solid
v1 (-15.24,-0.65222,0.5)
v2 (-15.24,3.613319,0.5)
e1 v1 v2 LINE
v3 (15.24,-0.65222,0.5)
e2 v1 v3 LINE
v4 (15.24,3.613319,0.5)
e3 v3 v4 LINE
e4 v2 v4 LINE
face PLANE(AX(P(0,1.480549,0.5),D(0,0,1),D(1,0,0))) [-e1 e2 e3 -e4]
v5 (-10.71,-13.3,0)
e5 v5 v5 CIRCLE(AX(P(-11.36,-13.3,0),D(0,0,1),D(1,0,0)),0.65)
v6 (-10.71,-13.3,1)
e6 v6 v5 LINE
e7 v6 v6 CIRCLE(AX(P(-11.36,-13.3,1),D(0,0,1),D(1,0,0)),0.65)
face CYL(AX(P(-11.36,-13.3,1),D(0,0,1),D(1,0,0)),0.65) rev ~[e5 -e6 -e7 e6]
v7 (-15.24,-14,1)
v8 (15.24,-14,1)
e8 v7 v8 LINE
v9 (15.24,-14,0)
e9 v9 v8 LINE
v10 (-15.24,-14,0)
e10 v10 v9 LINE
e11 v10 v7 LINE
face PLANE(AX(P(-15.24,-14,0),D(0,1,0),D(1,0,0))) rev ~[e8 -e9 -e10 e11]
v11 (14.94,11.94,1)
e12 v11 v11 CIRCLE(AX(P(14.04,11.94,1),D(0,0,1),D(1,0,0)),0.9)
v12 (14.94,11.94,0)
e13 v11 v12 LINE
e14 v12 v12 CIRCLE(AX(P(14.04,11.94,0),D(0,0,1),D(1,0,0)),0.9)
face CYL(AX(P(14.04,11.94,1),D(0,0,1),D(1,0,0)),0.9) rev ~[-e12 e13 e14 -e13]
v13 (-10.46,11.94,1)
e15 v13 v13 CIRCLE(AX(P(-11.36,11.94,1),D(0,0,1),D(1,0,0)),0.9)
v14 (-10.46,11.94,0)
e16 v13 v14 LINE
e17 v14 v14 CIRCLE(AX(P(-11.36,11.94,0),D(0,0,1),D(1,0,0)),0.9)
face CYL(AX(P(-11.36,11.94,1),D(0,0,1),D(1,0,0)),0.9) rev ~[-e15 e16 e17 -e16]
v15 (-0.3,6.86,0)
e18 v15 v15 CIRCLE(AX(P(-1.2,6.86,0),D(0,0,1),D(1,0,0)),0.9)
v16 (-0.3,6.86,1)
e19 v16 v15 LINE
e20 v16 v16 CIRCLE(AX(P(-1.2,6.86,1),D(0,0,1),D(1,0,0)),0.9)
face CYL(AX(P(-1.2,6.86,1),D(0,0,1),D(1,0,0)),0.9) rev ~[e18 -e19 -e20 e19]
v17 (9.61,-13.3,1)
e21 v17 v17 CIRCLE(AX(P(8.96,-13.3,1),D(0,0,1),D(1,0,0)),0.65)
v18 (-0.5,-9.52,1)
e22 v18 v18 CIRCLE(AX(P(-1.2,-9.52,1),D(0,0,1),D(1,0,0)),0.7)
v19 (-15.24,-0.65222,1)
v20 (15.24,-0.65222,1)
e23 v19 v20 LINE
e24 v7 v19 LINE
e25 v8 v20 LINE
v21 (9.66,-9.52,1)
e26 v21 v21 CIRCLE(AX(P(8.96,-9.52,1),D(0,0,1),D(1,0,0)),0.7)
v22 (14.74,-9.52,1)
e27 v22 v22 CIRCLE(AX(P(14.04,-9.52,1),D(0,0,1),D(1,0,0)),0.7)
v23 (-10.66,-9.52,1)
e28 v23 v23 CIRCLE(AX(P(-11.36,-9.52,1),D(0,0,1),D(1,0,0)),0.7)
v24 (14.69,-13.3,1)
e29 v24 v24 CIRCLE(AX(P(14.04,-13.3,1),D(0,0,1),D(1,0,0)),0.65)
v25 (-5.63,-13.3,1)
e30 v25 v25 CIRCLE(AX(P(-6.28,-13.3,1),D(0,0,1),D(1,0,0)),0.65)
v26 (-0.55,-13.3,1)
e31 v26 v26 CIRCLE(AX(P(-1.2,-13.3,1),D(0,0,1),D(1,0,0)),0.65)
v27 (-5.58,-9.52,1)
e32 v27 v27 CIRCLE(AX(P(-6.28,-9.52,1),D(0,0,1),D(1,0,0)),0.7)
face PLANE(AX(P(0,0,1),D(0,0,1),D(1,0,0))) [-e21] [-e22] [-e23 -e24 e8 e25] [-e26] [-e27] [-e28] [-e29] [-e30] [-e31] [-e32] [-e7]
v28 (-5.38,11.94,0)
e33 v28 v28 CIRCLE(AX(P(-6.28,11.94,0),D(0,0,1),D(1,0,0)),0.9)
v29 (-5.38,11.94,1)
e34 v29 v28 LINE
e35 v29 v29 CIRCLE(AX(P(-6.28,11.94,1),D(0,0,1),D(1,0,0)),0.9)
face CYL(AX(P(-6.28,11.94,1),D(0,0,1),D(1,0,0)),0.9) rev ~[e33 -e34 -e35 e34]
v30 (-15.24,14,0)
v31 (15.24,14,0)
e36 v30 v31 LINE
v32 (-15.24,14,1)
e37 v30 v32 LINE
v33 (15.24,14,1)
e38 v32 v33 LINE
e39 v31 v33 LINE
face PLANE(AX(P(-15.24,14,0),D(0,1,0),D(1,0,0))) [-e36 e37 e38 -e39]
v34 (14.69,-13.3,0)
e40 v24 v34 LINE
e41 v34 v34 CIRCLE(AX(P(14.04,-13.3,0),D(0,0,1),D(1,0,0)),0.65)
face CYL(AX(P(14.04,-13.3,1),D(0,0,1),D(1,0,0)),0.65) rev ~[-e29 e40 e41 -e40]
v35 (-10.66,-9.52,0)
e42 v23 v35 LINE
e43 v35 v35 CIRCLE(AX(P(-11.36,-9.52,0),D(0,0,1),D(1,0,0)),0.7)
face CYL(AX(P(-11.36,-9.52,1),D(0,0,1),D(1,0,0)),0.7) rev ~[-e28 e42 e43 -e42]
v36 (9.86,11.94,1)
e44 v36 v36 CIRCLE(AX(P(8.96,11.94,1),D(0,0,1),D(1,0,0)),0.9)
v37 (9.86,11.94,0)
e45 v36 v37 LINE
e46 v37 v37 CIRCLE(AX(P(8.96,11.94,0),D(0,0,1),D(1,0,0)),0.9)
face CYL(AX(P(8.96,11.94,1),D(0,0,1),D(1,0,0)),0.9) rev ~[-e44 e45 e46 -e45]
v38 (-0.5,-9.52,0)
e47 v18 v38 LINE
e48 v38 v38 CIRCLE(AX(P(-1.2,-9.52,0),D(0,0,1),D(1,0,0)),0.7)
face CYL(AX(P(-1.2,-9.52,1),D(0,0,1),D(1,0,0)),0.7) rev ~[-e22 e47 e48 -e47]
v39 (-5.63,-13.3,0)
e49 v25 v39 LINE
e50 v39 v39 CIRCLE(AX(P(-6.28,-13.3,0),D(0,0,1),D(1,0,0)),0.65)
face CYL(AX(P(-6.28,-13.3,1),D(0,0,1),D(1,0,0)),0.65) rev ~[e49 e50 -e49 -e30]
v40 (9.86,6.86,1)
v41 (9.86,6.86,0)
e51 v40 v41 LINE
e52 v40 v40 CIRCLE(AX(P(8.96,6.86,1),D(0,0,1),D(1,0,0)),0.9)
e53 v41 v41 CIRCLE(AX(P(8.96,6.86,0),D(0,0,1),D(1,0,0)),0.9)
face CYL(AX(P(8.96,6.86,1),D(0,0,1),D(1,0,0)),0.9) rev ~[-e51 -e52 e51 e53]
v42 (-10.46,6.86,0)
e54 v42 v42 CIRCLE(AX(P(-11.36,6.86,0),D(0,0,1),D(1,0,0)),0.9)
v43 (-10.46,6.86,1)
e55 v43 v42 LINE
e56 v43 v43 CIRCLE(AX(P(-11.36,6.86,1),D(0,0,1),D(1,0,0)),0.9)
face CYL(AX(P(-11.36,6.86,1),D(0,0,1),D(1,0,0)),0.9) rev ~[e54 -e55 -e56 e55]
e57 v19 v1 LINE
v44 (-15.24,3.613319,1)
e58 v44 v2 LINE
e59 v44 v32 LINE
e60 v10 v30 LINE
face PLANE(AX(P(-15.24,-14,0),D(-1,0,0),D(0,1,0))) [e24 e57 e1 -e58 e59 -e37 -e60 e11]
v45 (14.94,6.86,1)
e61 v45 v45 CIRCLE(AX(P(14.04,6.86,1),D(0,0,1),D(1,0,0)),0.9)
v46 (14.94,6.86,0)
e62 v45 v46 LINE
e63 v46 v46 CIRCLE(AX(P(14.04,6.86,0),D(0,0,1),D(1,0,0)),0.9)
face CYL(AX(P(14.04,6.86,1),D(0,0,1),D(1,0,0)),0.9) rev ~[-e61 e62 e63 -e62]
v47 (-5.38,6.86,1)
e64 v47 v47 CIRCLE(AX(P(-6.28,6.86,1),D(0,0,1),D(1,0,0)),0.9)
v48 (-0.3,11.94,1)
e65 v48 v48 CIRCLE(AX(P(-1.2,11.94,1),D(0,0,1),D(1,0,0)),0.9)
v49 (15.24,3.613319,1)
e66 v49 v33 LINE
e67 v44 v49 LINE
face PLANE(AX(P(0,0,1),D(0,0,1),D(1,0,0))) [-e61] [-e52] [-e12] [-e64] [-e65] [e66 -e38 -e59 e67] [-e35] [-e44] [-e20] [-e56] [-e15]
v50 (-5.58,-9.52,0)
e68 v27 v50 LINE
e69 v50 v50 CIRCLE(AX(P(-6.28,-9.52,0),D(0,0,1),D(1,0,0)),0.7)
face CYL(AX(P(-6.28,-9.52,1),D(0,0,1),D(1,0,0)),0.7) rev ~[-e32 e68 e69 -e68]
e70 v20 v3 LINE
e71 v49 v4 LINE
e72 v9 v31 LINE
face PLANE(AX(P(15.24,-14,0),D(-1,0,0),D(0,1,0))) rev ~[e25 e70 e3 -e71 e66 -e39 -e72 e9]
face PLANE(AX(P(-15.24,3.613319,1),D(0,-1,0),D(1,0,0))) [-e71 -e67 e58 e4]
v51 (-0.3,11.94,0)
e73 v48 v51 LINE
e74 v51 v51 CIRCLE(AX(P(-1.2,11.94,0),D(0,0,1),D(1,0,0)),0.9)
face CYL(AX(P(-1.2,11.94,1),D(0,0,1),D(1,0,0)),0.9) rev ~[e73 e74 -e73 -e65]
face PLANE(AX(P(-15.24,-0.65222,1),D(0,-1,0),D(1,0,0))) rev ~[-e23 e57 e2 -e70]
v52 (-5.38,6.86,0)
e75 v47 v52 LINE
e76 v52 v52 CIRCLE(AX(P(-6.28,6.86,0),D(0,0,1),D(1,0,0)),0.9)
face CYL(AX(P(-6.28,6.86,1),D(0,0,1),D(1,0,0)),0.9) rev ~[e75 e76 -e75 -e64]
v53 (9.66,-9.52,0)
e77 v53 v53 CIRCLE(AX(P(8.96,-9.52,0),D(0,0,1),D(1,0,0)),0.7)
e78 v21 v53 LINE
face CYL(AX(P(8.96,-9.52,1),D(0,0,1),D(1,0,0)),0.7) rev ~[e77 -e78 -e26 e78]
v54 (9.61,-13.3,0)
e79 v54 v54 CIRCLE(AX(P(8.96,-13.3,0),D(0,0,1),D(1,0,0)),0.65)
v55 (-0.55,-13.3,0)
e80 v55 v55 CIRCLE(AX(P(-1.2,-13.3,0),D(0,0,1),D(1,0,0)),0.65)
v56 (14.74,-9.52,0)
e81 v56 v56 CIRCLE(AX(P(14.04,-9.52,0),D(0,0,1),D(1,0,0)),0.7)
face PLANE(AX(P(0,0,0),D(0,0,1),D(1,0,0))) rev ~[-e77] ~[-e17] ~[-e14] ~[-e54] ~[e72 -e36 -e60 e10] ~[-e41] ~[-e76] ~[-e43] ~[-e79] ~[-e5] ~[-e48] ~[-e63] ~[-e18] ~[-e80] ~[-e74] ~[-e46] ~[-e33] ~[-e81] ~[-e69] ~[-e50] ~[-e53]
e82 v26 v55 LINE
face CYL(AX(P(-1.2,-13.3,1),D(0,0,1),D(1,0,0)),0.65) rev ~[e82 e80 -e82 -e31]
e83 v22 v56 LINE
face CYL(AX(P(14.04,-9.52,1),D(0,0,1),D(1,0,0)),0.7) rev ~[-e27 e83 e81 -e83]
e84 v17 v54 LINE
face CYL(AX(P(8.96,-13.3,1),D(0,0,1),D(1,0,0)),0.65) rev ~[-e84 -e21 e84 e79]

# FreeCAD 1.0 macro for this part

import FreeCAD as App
import Part
import Sketcher
from FreeCAD import Vector

doc = App.newDocument("Part")
body = doc.addObject("PartDesign::Body", "Body")

sketch1 = body.newObject("Sketcher::SketchObject", "Sketch")
sketch1.AttachmentSupport = (doc.getObject("XY_Plane"), [""])
sketch1.MapMode = "FlatFace"
sketch1.addGeometry([
    Part.LineSegment(Vector(-15, 14, 0), Vector(-15, -14, 0)),
    Part.LineSegment(Vector(-15, -14, 0), Vector(15, -14, 0)),
    Part.LineSegment(Vector(15, -14, 0), Vector(15, 14, 0)),
    Part.LineSegment(Vector(15, 14, 0), Vector(-15, 14, 0)),
], False)
sketch1.addConstraint([
    Sketcher.Constraint("Coincident", 0, 2, 1, 1),
    Sketcher.Constraint("Coincident", 1, 2, 2, 1),
    Sketcher.Constraint("Coincident", 2, 2, 3, 1),
    Sketcher.Constraint("Coincident", 3, 2, 0, 1),
    Sketcher.Constraint("Vertical", 0),
    Sketcher.Constraint("Horizontal", 1),
    Sketcher.Constraint("Vertical", 2),
    Sketcher.Constraint("Horizontal", 3),
    Sketcher.Constraint("Symmetric", 0, 2, 2, 2, -1, 1),
    Sketcher.Constraint("DistanceY", 0, 2, 0, 1, 28.0),
    Sketcher.Constraint("DistanceX", 1, 1, 1, 2, 30.48),
])
pad1 = body.newObject("PartDesign::Pad", "Pad")
pad1.Profile = sketch1
pad1.Length = 1

sketch2 = body.newObject("Sketcher::SketchObject", "Sketch001")
sketch2.AttachmentSupport = (doc.getObject("XY_Plane"), [""])
sketch2.MapMode = "FlatFace"
sketch2.AttachmentOffset = App.Placement(Vector(0, 0, 1), App.Rotation())
sketch2.addGeometry([
    Part.LineSegment(Vector(-15.2, 3.6, 0), Vector(-15.2, -0.7, 0)),
    Part.LineSegment(Vector(-15.2, -0.7, 0), Vector(15.2, -0.7, 0)),
    Part.LineSegment(Vector(15.2, -0.7, 0), Vector(15.2, 3.6, 0)),
    Part.LineSegment(Vector(15.2, 3.6, 0), Vector(-15.2, 3.6, 0)),
], False)
sketch2.addConstraint([
    Sketcher.Constraint("Coincident", 0, 2, 1, 1),
    Sketcher.Constraint("Coincident", 1, 2, 2, 1),
    Sketcher.Constraint("Coincident", 2, 2, 3, 1),
    Sketcher.Constraint("Coincident", 3, 2, 0, 1),
    Sketcher.Constraint("Vertical", 0),
    Sketcher.Constraint("Horizontal", 1),
    Sketcher.Constraint("Vertical", 2),
    Sketcher.Constraint("Horizontal", 3),
    Sketcher.Constraint("DistanceX", 1, 1, 1, 2, 30.48),
    Sketcher.Constraint("DistanceX", 0, 2, -1, 1, 15.24),
    Sketcher.Constraint("DistanceY", 0, 2, 0, 1, 4.265539),
    Sketcher.Constraint("DistanceY", 0, 2, -1, 1, 0.65222),
])
pocket1 = body.newObject("PartDesign::Pocket", "Pocket")
pocket1.Profile = sketch2
pocket1.Length = 0.5

sketch3 = body.newObject("Sketcher::SketchObject", "Sketch002")
sketch3.AttachmentSupport = (doc.getObject("XY_Plane"), [""])
sketch3.MapMode = "FlatFace"
sketch3.AttachmentOffset = App.Placement(Vector(0, 0, 1), App.Rotation())
sketch3.addGeometry([
    Part.Circle(Vector(-11.4, 11.9, 0), Vector(0, 0, 1), 0.9),
    Part.Circle(Vector(-6.3, 11.9, 0), Vector(0, 0, 1), 0.9),
    Part.Circle(Vector(-1.2, 11.9, 0), Vector(0, 0, 1), 0.9),
    Part.Circle(Vector(9, 11.9, 0), Vector(0, 0, 1), 0.9),
    Part.Circle(Vector(14, 11.9, 0), Vector(0, 0, 1), 0.9),
    Part.Circle(Vector(-11.4, 6.9, 0), Vector(0, 0, 1), 0.9),
    Part.Circle(Vector(-6.3, 6.9, 0), Vector(0, 0, 1), 0.9),
    Part.Circle(Vector(-1.2, 6.9, 0), Vector(0, 0, 1), 0.9),
    Part.Circle(Vector(9, 6.9, 0), Vector(0, 0, 1), 0.9),
    Part.Circle(Vector(14, 6.9, 0), Vector(0, 0, 1), 0.9),
    Part.Circle(Vector(-11.4, -9.5, 0), Vector(0, 0, 1), 0.7),
    Part.Circle(Vector(-6.3, -9.5, 0), Vector(0, 0, 1), 0.7),
    Part.Circle(Vector(-1.2, -9.5, 0), Vector(0, 0, 1), 0.7),
    Part.Circle(Vector(9, -9.5, 0), Vector(0, 0, 1), 0.7),
    Part.Circle(Vector(14, -9.5, 0), Vector(0, 0, 1), 0.7),
    Part.Circle(Vector(-11.4, -13.3, 0), Vector(0, 0, 1), 0.7),
    Part.Circle(Vector(-6.3, -13.3, 0), Vector(0, 0, 1), 0.7),
    Part.Circle(Vector(-1.2, -13.3, 0), Vector(0, 0, 1), 0.7),
    Part.Circle(Vector(9, -13.3, 0), Vector(0, 0, 1), 0.7),
    Part.Circle(Vector(14, -13.3, 0), Vector(0, 0, 1), 0.7),
], False)
sketch3.addConstraint([
    Sketcher.Constraint("Equal", 0, 1),
    Sketcher.Constraint("Equal", 1, 2),
    Sketcher.Constraint("Equal", 2, 3),
    Sketcher.Constraint("Equal", 3, 4),
    Sketcher.Constraint("Equal", 4, 5),
    Sketcher.Constraint("Equal", 5, 6),
    Sketcher.Constraint("Equal", 6, 7),
    Sketcher.Constraint("Equal", 7, 8),
    Sketcher.Constraint("Equal", 8, 9),
    Sketcher.Constraint("Equal", 10, 11),
    Sketcher.Constraint("Equal", 11, 12),
    Sketcher.Constraint("Equal", 12, 13),
    Sketcher.Constraint("Equal", 13, 14),
    Sketcher.Constraint("Equal", 15, 16),
    Sketcher.Constraint("Equal", 16, 17),
    Sketcher.Constraint("Equal", 17, 18),
    Sketcher.Constraint("Equal", 18, 19),
    Sketcher.Constraint("Horizontal", 0, 3, 1, 3),
    Sketcher.Constraint("Horizontal", 1, 3, 2, 3),
    Sketcher.Constraint("Horizontal", 2, 3, 3, 3),
    Sketcher.Constraint("Horizontal", 3, 3, 4, 3),
    Sketcher.Constraint("Horizontal", 5, 3, 6, 3),
    Sketcher.Constraint("Horizontal", 6, 3, 7, 3),
    Sketcher.Constraint("Horizontal", 7, 3, 8, 3),
    Sketcher.Constraint("Horizontal", 8, 3, 9, 3),
    Sketcher.Constraint("Horizontal", 10, 3, 11, 3),
    Sketcher.Constraint("Horizontal", 11, 3, 12, 3),
    Sketcher.Constraint("Horizontal", 12, 3, 13, 3),
    Sketcher.Constraint("Horizontal", 13, 3, 14, 3),
    Sketcher.Constraint("Horizontal", 15, 3, 16, 3),
    Sketcher.Constraint("Horizontal", 16, 3, 17, 3),
    Sketcher.Constraint("Horizontal", 17, 3, 18, 3),
    Sketcher.Constraint("Horizontal", 18, 3, 19, 3),
    Sketcher.Constraint("Vertical", 0, 3, 5, 3),
    Sketcher.Constraint("Vertical", 1, 3, 6, 3),
    Sketcher.Constraint("Vertical", 2, 3, 7, 3),
    Sketcher.Constraint("Vertical", 3, 3, 8, 3),
    Sketcher.Constraint("Vertical", 4, 3, 9, 3),
    Sketcher.Constraint("Vertical", 5, 3, 10, 3),
    Sketcher.Constraint("Vertical", 6, 3, 11, 3),
    Sketcher.Constraint("Vertical", 7, 3, 12, 3),
    Sketcher.Constraint("Vertical", 8, 3, 13, 3),
    Sketcher.Constraint("Vertical", 9, 3, 14, 3),
    Sketcher.Constraint("Vertical", 10, 3, 15, 3),
    Sketcher.Constraint("Vertical", 11, 3, 16, 3),
    Sketcher.Constraint("Vertical", 12, 3, 17, 3),
    Sketcher.Constraint("Vertical", 13, 3, 18, 3),
    Sketcher.Constraint("Vertical", 14, 3, 19, 3),
    Sketcher.Constraint("Diameter", 0, 1.8),
    Sketcher.Constraint("Diameter", 10, 1.4),
    Sketcher.Constraint("Diameter", 15, 1.3),
    Sketcher.Constraint("DistanceX", 2, 3, -1, 1, 1.2),
    Sketcher.Constraint("DistanceY", 15, 3, -1, 1, 13.3),
    Sketcher.Constraint("DistanceX", 0, 3, 4, 3, 25.4),
    Sketcher.Constraint("DistanceX", 0, 3, -1, 1, 11.36),
    Sketcher.Constraint("DistanceY", -1, 1, 0, 3, 11.94),
    Sketcher.Constraint("DistanceX", 1, 3, -1, 1, 6.28),
    Sketcher.Constraint("DistanceX", -1, 1, 3, 3, 8.96),
    Sketcher.Constraint("DistanceY", -1, 1, 5, 3, 6.86),
    Sketcher.Constraint("DistanceY", 10, 3, -1, 1, 9.52),
])
pocket2 = body.newObject("PartDesign::Pocket", "Pocket001")
pocket2.Profile = sketch3
pocket2.Length = 2

doc.recompute()
